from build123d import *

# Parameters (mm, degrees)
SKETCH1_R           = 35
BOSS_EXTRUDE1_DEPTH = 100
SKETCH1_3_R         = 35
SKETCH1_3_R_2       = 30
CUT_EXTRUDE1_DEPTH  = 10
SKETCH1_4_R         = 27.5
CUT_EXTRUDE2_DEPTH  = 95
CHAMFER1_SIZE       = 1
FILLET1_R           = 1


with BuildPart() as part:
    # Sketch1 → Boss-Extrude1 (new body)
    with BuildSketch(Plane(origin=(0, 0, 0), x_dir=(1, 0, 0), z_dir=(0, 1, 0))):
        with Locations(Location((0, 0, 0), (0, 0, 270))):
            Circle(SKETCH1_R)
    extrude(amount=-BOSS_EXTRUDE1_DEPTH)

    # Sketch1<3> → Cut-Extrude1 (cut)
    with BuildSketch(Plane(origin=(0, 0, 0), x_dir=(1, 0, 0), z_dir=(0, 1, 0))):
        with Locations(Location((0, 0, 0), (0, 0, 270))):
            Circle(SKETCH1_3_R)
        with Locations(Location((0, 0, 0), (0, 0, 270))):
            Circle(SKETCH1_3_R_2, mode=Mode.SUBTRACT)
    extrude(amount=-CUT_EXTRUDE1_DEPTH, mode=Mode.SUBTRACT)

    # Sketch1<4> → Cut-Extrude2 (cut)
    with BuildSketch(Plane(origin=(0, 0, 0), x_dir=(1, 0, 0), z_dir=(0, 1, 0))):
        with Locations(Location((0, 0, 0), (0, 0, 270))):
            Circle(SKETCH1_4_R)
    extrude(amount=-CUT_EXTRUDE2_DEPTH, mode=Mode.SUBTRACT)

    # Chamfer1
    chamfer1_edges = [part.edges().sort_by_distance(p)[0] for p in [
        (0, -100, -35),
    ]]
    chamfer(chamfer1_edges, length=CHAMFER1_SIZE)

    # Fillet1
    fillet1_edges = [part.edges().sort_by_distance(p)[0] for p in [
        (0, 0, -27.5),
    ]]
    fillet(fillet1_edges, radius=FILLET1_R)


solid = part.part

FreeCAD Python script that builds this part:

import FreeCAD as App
import Part
import Sketcher

V = App.Vector


def edges_at(feature, points):
    """Names of the edges that pass closest to the given points."""
    edges = feature.Shape.Edges
    near = lambda p: min(range(len(edges)), key=lambda i: edges[i].distToShape(Part.Vertex(*p))[0])
    return sorted({f"Edge{near(p) + 1}" for p in points})

doc = App.newDocument("Part")
params = doc.addObject("Spreadsheet::Sheet", "Params")
for row, (alias, value) in enumerate([
    ("sketch1_diameter", "70 mm"),
    ("pad1_length", "100 mm"),
    ("sketch2_diameter", "70 mm"),
    ("sketch2_diameter2", "60 mm"),
    ("pocket1_length", "10 mm"),
    ("sketch3_diameter", "55 mm"),
    ("pocket2_length", "95 mm"),
    ("chamfer_size", "1 mm"),
    ("fillet_radius", "1 mm"),
], start=1):
    params.set(f"A{row}", alias)
    params.set(f"B{row}", "=" + value)
    params.setAlias(f"B{row}", alias)

body = doc.addObject("PartDesign::Body", "Body")

sketch1 = body.newObject("Sketcher::SketchObject", "Sketch")
sketch1.AttachmentSupport = (doc.getObject("XZ_Plane"), [""])
sketch1.MapMode = "FlatFace"
sketch1.addGeometry(Part.Circle(V(0, 0, 0), V(0, 0, 1), 35), False)
sketch1.addConstraint([
    Sketcher.Constraint("Coincident", 0, 3, -1, 1),
    Sketcher.Constraint("Diameter", 0, 70.0),
])
sketch1.setExpression("Constraints[1]", "Params.sketch1_diameter")
pad1 = body.newObject("PartDesign::Pad", "Pad")
pad1.Profile = sketch1
pad1.setExpression("Length", "Params.pad1_length")

sketch2 = body.newObject("Sketcher::SketchObject", "Sketch001")
sketch2.AttachmentSupport = (doc.getObject("XZ_Plane"), [""])
sketch2.MapMode = "FlatFace"
sketch2.addGeometry([
    Part.Circle(V(0, 0, 0), V(0, 0, 1), 35),
    Part.Circle(V(0, 0, 0), V(0, 0, 1), 30),
], False)
sketch2.addConstraint([
    Sketcher.Constraint("Coincident", 0, 3, -1, 1),
    Sketcher.Constraint("Coincident", 1, 3, -1, 1),
    Sketcher.Constraint("Diameter", 0, 70.0),
    Sketcher.Constraint("Diameter", 1, 60.0),
])
sketch2.setExpression("Constraints[2]", "Params.sketch2_diameter")
sketch2.setExpression("Constraints[3]", "Params.sketch2_diameter2")
pocket1 = body.newObject("PartDesign::Pocket", "Pocket")
pocket1.Profile = sketch2
pocket1.setExpression("Length", "Params.pocket1_length")
pocket1.Reversed = True

sketch3 = body.newObject("Sketcher::SketchObject", "Sketch002")
sketch3.AttachmentSupport = (doc.getObject("XZ_Plane"), [""])
sketch3.MapMode = "FlatFace"
sketch3.addGeometry(Part.Circle(V(0, 0, 0), V(0, 0, 1), 27.5), False)
sketch3.addConstraint([
    Sketcher.Constraint("Coincident", 0, 3, -1, 1),
    Sketcher.Constraint("Diameter", 0, 55.0),
])
sketch3.setExpression("Constraints[1]", "Params.sketch3_diameter")
pocket2 = body.newObject("PartDesign::Pocket", "Pocket001")
pocket2.Profile = sketch3
pocket2.setExpression("Length", "Params.pocket2_length")
pocket2.Reversed = True
doc.recompute()

chamfer = body.newObject("PartDesign::Chamfer", "Chamfer")
chamfer.Base = (pocket2, edges_at(pocket2, [(0, -100, -35)]))
chamfer.setExpression("Size", "Params.chamfer_size")
doc.recompute()

fillet = body.newObject("PartDesign::Fillet", "Fillet")
fillet.Base = (chamfer, edges_at(chamfer, [(0, 0, -27.5)]))
fillet.setExpression("Radius", "Params.fillet_radius")

doc.recompute()
